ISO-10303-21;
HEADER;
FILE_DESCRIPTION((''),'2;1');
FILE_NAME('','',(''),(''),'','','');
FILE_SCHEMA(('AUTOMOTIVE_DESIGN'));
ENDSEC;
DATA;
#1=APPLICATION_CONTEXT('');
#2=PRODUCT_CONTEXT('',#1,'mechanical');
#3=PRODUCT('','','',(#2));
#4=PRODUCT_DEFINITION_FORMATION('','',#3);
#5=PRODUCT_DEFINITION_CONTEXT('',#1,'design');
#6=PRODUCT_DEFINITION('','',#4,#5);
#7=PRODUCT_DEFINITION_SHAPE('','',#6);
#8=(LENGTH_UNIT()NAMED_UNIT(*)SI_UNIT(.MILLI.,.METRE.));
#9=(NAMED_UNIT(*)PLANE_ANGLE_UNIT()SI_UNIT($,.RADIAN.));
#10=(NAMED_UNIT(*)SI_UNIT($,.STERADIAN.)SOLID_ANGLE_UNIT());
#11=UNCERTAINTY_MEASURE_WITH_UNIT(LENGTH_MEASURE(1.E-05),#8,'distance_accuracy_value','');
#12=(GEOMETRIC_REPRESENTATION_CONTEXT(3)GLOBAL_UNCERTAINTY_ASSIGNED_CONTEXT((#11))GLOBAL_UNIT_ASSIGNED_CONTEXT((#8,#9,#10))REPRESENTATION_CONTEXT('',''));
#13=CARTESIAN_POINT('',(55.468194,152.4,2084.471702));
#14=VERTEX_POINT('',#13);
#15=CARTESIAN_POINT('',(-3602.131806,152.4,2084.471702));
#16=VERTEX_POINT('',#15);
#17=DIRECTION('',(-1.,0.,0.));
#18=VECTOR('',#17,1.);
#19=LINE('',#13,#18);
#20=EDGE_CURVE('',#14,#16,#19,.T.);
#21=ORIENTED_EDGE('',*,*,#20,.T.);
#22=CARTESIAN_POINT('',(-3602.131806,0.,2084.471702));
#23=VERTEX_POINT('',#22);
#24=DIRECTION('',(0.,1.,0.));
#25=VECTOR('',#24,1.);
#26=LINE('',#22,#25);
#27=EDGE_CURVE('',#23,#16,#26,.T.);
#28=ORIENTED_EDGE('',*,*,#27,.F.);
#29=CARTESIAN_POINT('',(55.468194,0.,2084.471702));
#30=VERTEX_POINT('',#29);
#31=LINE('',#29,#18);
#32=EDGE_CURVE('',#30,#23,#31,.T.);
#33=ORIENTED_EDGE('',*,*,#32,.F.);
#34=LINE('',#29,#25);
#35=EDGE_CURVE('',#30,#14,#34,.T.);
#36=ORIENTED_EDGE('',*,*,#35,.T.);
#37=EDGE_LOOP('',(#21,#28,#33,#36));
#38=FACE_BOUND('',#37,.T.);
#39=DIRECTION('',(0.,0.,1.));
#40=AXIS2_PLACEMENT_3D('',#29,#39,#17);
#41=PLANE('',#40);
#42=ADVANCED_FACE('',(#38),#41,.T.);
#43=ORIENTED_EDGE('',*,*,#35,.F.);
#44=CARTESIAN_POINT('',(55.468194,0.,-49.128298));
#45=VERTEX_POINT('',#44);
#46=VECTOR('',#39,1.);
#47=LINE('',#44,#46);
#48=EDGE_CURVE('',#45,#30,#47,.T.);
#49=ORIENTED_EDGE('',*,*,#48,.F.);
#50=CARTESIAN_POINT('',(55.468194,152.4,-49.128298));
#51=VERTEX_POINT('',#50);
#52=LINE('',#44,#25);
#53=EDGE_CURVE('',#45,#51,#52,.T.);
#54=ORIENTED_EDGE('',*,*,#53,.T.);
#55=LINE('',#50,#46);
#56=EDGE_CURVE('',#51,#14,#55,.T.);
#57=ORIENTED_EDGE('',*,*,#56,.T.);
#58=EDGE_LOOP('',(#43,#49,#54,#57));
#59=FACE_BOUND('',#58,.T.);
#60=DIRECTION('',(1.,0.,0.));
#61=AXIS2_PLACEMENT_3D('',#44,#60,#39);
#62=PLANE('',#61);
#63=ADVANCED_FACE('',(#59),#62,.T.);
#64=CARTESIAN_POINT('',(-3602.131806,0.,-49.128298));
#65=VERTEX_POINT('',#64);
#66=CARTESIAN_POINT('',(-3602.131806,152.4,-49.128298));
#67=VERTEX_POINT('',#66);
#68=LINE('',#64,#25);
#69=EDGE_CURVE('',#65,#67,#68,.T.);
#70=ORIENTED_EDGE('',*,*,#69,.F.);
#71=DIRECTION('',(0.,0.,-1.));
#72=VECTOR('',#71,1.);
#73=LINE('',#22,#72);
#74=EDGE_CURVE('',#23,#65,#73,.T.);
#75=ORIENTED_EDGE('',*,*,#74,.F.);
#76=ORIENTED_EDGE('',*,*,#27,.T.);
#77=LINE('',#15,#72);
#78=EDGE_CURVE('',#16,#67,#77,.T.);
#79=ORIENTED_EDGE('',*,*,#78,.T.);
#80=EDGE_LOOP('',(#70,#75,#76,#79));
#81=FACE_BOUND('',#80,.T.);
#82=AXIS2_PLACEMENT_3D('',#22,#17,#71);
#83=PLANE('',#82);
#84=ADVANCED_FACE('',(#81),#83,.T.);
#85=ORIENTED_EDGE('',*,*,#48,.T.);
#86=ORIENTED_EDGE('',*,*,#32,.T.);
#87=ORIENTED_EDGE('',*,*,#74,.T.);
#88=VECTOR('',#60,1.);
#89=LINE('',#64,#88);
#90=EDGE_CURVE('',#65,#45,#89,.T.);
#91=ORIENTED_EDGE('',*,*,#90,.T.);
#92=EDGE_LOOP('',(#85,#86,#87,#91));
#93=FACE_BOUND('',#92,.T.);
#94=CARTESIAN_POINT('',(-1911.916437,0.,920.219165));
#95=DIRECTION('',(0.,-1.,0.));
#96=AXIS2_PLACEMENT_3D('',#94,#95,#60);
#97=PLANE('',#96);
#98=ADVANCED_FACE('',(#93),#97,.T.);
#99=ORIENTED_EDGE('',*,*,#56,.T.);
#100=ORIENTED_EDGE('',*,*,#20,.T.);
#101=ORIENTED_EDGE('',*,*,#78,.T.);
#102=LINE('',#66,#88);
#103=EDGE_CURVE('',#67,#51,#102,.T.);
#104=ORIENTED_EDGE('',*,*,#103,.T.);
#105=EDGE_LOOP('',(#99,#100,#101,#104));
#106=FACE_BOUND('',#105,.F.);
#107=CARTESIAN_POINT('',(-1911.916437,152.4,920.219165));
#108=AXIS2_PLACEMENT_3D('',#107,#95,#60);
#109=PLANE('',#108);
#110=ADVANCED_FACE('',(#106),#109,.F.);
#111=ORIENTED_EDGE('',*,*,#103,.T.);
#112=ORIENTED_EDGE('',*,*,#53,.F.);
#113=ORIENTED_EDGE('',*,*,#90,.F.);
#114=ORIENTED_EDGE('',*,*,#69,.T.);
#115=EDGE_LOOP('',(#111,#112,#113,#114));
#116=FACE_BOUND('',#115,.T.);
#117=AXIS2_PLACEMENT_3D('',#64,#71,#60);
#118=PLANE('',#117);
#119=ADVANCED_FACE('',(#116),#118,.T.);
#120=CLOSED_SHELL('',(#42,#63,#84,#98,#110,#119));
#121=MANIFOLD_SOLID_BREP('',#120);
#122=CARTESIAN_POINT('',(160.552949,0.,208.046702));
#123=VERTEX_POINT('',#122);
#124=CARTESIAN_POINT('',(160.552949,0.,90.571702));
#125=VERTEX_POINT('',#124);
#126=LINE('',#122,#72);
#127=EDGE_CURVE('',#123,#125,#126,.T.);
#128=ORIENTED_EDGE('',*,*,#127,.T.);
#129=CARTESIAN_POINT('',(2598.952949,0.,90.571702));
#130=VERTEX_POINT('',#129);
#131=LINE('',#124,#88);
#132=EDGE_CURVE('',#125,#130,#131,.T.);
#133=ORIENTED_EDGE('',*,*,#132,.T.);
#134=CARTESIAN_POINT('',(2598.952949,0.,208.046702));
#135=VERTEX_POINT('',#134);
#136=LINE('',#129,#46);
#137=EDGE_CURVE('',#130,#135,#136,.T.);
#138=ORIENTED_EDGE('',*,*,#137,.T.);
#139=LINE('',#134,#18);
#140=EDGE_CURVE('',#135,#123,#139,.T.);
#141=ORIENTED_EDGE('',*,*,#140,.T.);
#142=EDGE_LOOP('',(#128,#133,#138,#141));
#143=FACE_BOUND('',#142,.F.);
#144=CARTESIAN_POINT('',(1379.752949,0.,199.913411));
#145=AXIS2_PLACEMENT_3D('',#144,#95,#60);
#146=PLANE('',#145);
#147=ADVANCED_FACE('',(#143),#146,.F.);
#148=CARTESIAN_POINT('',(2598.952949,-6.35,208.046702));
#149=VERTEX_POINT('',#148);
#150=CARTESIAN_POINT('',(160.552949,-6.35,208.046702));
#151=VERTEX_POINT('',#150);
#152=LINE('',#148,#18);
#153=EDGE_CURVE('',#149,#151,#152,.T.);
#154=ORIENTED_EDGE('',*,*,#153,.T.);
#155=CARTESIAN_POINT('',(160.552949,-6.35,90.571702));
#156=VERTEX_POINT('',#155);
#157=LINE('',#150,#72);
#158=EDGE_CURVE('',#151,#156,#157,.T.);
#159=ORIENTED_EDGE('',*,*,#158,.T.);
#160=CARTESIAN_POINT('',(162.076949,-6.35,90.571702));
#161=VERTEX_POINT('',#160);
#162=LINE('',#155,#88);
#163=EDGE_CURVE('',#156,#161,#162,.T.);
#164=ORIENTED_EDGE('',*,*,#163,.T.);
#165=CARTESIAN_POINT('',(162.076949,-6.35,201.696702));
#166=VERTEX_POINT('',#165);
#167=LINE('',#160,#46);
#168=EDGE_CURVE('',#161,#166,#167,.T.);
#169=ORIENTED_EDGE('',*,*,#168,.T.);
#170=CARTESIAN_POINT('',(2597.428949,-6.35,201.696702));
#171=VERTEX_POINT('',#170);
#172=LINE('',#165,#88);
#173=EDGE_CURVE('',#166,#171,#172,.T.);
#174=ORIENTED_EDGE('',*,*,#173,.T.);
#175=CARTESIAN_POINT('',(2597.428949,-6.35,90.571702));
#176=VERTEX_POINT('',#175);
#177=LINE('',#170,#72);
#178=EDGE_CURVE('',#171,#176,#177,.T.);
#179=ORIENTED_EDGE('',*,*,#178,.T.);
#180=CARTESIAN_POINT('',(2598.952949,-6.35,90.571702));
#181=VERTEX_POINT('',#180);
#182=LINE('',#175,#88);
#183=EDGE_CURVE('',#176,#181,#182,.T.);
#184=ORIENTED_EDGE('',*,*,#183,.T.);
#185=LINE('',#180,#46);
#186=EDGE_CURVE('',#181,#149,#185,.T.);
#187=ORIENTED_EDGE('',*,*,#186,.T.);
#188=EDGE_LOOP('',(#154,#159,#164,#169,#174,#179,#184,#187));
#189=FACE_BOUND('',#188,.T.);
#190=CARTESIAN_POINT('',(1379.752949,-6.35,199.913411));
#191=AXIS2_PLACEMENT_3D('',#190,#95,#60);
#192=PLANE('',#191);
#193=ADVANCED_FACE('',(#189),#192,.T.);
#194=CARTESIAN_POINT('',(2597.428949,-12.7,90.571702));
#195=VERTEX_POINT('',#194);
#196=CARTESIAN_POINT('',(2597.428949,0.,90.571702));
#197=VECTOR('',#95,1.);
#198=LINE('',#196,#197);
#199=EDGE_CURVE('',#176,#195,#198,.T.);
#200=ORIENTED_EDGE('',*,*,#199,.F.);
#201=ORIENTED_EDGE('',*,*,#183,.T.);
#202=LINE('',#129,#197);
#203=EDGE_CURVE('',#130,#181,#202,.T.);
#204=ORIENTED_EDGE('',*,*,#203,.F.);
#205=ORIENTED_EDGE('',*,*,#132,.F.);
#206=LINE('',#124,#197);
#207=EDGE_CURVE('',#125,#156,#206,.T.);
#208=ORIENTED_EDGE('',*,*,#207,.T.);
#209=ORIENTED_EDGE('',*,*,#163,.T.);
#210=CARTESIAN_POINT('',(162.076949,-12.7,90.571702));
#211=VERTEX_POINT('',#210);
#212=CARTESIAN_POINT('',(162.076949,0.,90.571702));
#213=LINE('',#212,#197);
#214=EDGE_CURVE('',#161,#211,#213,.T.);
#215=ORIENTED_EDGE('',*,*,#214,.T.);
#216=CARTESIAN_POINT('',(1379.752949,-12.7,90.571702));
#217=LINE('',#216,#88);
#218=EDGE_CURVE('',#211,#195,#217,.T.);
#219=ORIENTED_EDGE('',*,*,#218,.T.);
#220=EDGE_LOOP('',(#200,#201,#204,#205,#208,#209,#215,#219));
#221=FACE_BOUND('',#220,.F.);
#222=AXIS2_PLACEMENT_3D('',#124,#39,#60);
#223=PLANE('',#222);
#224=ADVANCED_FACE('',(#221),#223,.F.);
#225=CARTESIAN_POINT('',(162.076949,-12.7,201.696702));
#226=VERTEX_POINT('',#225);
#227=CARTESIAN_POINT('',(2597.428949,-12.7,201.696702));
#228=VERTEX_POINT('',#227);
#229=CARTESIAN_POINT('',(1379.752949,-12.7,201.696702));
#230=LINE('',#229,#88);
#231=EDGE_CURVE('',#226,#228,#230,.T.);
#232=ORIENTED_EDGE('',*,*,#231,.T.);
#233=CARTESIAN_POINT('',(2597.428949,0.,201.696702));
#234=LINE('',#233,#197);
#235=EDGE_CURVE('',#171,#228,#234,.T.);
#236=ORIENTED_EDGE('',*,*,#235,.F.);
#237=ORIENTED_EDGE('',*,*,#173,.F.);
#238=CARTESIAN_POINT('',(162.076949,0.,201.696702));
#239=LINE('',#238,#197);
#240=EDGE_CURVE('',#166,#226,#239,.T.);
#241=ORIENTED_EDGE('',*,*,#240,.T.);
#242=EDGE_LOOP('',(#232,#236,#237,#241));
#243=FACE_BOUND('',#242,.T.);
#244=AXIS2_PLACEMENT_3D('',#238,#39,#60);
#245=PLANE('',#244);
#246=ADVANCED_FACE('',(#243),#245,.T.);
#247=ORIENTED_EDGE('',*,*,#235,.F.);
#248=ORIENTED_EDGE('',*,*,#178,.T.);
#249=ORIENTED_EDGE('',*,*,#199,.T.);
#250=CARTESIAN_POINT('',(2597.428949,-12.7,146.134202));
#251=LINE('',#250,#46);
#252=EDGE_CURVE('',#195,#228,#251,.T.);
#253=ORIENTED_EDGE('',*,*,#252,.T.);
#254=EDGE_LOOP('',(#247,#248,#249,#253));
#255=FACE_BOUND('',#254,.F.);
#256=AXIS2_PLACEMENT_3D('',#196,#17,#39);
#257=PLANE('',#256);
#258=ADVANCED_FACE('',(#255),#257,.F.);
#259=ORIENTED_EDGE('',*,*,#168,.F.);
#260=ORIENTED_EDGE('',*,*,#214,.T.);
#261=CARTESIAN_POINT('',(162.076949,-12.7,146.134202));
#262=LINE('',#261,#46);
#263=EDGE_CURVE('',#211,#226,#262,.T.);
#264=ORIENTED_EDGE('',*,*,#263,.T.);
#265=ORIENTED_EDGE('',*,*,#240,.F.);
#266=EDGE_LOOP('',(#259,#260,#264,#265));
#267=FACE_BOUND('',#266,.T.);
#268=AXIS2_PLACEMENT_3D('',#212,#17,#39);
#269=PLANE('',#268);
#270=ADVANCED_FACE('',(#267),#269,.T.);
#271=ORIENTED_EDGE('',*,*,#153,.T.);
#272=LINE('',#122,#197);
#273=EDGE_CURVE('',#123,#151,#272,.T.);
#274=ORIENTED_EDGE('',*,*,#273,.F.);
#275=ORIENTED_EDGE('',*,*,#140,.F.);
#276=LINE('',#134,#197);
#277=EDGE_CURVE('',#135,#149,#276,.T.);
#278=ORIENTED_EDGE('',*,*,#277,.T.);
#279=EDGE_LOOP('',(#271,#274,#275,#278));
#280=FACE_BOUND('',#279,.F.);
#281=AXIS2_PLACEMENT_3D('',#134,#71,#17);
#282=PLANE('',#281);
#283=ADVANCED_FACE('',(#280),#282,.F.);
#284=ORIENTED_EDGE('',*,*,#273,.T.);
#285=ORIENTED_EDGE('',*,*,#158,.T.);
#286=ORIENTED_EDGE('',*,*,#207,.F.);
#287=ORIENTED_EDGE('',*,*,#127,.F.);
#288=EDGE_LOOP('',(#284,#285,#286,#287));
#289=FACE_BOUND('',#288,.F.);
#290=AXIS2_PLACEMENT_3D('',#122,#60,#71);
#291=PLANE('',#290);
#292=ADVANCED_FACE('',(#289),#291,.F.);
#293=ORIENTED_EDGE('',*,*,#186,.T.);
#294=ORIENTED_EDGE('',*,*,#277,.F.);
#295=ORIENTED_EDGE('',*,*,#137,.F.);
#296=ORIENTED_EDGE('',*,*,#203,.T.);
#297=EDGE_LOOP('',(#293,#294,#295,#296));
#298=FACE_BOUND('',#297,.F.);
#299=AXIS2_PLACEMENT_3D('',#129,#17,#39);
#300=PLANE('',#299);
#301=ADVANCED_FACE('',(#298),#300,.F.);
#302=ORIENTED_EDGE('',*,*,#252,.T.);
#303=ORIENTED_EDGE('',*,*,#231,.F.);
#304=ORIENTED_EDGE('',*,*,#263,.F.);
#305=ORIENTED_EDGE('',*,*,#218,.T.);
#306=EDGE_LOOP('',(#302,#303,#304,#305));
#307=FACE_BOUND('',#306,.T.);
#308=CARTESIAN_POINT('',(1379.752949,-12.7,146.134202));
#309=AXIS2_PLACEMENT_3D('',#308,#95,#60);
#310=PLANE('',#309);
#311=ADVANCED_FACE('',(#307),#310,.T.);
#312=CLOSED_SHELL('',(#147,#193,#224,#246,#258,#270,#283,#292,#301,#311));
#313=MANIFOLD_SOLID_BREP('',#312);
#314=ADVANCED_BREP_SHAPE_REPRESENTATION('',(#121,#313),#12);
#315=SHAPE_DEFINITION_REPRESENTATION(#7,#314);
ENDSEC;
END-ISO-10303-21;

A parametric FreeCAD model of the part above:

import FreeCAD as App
import Part
import Sketcher

V = App.Vector
Q = App.Units.Quantity


def add_polygon(sketch, points):
    """Adds a closed chain of lines whose ends are joined by coincident constraints."""
    first, n = sketch.GeometryCount, len(points)
    for a, b in zip(points, points[1:] + points[:1]):
        sketch.addGeometry(Part.LineSegment(App.Vector(*a, 0), App.Vector(*b, 0)), False)
    for i in range(n):
        sketch.addConstraint(Sketcher.Constraint("Coincident", first + i, 2, first + (i + 1) % n, 1))

doc = App.newDocument("Part")
body = doc.addObject("PartDesign::Body", "Body")

# Sketch on XZ plane
sketch1 = body.newObject("Sketcher::SketchObject", "Sketch")
sketch1.AttachmentSupport = (doc.getObject("XZ_Plane"), [""])
sketch1.MapMode = "FlatFace"
add_polygon(sketch1, [(162.076949, 201.696702), (162.076949, 90.571702), (2597.428949, 90.571702), (2597.428949, 201.696702)])  # lines 0-3
sketch1.addConstraint(Sketcher.Constraint("Vertical", 0))
sketch1.addConstraint(Sketcher.Constraint("Horizontal", 1))
sketch1.addConstraint(Sketcher.Constraint("Vertical", 2))
sketch1.addConstraint(Sketcher.Constraint("Horizontal", 3))
sketch1.addConstraint(Sketcher.Constraint("DistanceX", 1, 1, 1, 2, Q("95.88 in")))
sketch1.addConstraint(Sketcher.Constraint("DistanceY", 0, 2, 0, 1, Q("4.375 in")))
sketch1.addConstraint(Sketcher.Constraint("DistanceX", -1, 1, 0, 2, Q("162.076949 mm")))
sketch1.addConstraint(Sketcher.Constraint("DistanceY", -1, 1, 0, 2, Q("90.571702 mm")))
pad1 = body.newObject("PartDesign::Pad", "Pad")
pad1.Profile = sketch1
pad1.Length = Q("0.5 in")

# Sketch on XZ plane
sketch2 = body.newObject("Sketcher::SketchObject", "Sketch001")
sketch2.AttachmentSupport = (doc.getObject("XZ_Plane"), [""])
sketch2.MapMode = "FlatFace"
add_polygon(sketch2, [(160.552949, 90.571702), (162.076949, 90.571702), (162.076949, 201.696702), (2597.428949, 201.696702), (2597.428949, 90.571702), (2598.952949, 90.571702), (2598.952949, 208.046702), (160.552949, 208.046702)])  # lines 0-7
sketch2.addConstraint(Sketcher.Constraint("Horizontal", 0))
sketch2.addConstraint(Sketcher.Constraint("Vertical", 1))
sketch2.addConstraint(Sketcher.Constraint("Horizontal", 2))
sketch2.addConstraint(Sketcher.Constraint("Vertical", 3))
sketch2.addConstraint(Sketcher.Constraint("Horizontal", 4))
sketch2.addConstraint(Sketcher.Constraint("Vertical", 5))
sketch2.addConstraint(Sketcher.Constraint("Horizontal", 6))
sketch2.addConstraint(Sketcher.Constraint("Vertical", 7))
sketch2.addConstraint(Sketcher.Constraint("Horizontal", 0, 2, 3, 2))
sketch2.addConstraint(Sketcher.Constraint("Equal", 0, 4))
sketch2.addConstraint(Sketcher.Constraint("DistanceX", 6, 2, 6, 1, Q("96 in")))
sketch2.addConstraint(Sketcher.Constraint("DistanceX", 0, 1, 0, 2, Q("0.06 in")))
sketch2.addConstraint(Sketcher.Constraint("DistanceY", 1, 1, 1, 2, Q("4.375 in")))
sketch2.addConstraint(Sketcher.Constraint("DistanceY", 5, 1, 5, 2, Q("4.625 in")))
sketch2.addConstraint(Sketcher.Constraint("DistanceX", -1, 1, 0, 2, Q("162.076949 mm")))
sketch2.addConstraint(Sketcher.Constraint("DistanceY", -1, 1, 0, 2, Q("90.571702 mm")))
pad2 = body.newObject("PartDesign::Pad", "Pad001")
pad2.Profile = sketch2
pad2.Length = Q("0.25 in")
body2 = doc.addObject("PartDesign::Body", "Body001")

# Sketch on XZ plane
sketch3 = body2.newObject("Sketcher::SketchObject", "Sketch002")
sketch3.AttachmentSupport = (doc.getObject("XZ_Plane001"), [""])
sketch3.MapMode = "FlatFace"
add_polygon(sketch3, [(55.468194, 2084.471702), (-3602.131806, 2084.471702), (-3602.131806, -49.128298), (55.468194, -49.128298)])  # lines 0-3
sketch3.addConstraint(Sketcher.Constraint("Horizontal", 0))
sketch3.addConstraint(Sketcher.Constraint("Vertical", 1))
sketch3.addConstraint(Sketcher.Constraint("Horizontal", 2))
sketch3.addConstraint(Sketcher.Constraint("Vertical", 3))
sketch3.addConstraint(Sketcher.Constraint("DistanceX", 0, 2, 0, 1, Q("144 in")))
sketch3.addConstraint(Sketcher.Constraint("DistanceY", 1, 2, 1, 1, Q("84 in")))
sketch3.addConstraint(Sketcher.Constraint("DistanceX", 0, 2, -1, 1, Q("3602.131806 mm")))
sketch3.addConstraint(Sketcher.Constraint("DistanceY", -1, 1, 0, 2, Q("2084.471702 mm")))
pad3 = body2.newObject("PartDesign::Pad", "Pad002")
pad3.Profile = sketch3
pad3.Length = Q("6 in")
pad3.Reversed = True

doc.recompute()
